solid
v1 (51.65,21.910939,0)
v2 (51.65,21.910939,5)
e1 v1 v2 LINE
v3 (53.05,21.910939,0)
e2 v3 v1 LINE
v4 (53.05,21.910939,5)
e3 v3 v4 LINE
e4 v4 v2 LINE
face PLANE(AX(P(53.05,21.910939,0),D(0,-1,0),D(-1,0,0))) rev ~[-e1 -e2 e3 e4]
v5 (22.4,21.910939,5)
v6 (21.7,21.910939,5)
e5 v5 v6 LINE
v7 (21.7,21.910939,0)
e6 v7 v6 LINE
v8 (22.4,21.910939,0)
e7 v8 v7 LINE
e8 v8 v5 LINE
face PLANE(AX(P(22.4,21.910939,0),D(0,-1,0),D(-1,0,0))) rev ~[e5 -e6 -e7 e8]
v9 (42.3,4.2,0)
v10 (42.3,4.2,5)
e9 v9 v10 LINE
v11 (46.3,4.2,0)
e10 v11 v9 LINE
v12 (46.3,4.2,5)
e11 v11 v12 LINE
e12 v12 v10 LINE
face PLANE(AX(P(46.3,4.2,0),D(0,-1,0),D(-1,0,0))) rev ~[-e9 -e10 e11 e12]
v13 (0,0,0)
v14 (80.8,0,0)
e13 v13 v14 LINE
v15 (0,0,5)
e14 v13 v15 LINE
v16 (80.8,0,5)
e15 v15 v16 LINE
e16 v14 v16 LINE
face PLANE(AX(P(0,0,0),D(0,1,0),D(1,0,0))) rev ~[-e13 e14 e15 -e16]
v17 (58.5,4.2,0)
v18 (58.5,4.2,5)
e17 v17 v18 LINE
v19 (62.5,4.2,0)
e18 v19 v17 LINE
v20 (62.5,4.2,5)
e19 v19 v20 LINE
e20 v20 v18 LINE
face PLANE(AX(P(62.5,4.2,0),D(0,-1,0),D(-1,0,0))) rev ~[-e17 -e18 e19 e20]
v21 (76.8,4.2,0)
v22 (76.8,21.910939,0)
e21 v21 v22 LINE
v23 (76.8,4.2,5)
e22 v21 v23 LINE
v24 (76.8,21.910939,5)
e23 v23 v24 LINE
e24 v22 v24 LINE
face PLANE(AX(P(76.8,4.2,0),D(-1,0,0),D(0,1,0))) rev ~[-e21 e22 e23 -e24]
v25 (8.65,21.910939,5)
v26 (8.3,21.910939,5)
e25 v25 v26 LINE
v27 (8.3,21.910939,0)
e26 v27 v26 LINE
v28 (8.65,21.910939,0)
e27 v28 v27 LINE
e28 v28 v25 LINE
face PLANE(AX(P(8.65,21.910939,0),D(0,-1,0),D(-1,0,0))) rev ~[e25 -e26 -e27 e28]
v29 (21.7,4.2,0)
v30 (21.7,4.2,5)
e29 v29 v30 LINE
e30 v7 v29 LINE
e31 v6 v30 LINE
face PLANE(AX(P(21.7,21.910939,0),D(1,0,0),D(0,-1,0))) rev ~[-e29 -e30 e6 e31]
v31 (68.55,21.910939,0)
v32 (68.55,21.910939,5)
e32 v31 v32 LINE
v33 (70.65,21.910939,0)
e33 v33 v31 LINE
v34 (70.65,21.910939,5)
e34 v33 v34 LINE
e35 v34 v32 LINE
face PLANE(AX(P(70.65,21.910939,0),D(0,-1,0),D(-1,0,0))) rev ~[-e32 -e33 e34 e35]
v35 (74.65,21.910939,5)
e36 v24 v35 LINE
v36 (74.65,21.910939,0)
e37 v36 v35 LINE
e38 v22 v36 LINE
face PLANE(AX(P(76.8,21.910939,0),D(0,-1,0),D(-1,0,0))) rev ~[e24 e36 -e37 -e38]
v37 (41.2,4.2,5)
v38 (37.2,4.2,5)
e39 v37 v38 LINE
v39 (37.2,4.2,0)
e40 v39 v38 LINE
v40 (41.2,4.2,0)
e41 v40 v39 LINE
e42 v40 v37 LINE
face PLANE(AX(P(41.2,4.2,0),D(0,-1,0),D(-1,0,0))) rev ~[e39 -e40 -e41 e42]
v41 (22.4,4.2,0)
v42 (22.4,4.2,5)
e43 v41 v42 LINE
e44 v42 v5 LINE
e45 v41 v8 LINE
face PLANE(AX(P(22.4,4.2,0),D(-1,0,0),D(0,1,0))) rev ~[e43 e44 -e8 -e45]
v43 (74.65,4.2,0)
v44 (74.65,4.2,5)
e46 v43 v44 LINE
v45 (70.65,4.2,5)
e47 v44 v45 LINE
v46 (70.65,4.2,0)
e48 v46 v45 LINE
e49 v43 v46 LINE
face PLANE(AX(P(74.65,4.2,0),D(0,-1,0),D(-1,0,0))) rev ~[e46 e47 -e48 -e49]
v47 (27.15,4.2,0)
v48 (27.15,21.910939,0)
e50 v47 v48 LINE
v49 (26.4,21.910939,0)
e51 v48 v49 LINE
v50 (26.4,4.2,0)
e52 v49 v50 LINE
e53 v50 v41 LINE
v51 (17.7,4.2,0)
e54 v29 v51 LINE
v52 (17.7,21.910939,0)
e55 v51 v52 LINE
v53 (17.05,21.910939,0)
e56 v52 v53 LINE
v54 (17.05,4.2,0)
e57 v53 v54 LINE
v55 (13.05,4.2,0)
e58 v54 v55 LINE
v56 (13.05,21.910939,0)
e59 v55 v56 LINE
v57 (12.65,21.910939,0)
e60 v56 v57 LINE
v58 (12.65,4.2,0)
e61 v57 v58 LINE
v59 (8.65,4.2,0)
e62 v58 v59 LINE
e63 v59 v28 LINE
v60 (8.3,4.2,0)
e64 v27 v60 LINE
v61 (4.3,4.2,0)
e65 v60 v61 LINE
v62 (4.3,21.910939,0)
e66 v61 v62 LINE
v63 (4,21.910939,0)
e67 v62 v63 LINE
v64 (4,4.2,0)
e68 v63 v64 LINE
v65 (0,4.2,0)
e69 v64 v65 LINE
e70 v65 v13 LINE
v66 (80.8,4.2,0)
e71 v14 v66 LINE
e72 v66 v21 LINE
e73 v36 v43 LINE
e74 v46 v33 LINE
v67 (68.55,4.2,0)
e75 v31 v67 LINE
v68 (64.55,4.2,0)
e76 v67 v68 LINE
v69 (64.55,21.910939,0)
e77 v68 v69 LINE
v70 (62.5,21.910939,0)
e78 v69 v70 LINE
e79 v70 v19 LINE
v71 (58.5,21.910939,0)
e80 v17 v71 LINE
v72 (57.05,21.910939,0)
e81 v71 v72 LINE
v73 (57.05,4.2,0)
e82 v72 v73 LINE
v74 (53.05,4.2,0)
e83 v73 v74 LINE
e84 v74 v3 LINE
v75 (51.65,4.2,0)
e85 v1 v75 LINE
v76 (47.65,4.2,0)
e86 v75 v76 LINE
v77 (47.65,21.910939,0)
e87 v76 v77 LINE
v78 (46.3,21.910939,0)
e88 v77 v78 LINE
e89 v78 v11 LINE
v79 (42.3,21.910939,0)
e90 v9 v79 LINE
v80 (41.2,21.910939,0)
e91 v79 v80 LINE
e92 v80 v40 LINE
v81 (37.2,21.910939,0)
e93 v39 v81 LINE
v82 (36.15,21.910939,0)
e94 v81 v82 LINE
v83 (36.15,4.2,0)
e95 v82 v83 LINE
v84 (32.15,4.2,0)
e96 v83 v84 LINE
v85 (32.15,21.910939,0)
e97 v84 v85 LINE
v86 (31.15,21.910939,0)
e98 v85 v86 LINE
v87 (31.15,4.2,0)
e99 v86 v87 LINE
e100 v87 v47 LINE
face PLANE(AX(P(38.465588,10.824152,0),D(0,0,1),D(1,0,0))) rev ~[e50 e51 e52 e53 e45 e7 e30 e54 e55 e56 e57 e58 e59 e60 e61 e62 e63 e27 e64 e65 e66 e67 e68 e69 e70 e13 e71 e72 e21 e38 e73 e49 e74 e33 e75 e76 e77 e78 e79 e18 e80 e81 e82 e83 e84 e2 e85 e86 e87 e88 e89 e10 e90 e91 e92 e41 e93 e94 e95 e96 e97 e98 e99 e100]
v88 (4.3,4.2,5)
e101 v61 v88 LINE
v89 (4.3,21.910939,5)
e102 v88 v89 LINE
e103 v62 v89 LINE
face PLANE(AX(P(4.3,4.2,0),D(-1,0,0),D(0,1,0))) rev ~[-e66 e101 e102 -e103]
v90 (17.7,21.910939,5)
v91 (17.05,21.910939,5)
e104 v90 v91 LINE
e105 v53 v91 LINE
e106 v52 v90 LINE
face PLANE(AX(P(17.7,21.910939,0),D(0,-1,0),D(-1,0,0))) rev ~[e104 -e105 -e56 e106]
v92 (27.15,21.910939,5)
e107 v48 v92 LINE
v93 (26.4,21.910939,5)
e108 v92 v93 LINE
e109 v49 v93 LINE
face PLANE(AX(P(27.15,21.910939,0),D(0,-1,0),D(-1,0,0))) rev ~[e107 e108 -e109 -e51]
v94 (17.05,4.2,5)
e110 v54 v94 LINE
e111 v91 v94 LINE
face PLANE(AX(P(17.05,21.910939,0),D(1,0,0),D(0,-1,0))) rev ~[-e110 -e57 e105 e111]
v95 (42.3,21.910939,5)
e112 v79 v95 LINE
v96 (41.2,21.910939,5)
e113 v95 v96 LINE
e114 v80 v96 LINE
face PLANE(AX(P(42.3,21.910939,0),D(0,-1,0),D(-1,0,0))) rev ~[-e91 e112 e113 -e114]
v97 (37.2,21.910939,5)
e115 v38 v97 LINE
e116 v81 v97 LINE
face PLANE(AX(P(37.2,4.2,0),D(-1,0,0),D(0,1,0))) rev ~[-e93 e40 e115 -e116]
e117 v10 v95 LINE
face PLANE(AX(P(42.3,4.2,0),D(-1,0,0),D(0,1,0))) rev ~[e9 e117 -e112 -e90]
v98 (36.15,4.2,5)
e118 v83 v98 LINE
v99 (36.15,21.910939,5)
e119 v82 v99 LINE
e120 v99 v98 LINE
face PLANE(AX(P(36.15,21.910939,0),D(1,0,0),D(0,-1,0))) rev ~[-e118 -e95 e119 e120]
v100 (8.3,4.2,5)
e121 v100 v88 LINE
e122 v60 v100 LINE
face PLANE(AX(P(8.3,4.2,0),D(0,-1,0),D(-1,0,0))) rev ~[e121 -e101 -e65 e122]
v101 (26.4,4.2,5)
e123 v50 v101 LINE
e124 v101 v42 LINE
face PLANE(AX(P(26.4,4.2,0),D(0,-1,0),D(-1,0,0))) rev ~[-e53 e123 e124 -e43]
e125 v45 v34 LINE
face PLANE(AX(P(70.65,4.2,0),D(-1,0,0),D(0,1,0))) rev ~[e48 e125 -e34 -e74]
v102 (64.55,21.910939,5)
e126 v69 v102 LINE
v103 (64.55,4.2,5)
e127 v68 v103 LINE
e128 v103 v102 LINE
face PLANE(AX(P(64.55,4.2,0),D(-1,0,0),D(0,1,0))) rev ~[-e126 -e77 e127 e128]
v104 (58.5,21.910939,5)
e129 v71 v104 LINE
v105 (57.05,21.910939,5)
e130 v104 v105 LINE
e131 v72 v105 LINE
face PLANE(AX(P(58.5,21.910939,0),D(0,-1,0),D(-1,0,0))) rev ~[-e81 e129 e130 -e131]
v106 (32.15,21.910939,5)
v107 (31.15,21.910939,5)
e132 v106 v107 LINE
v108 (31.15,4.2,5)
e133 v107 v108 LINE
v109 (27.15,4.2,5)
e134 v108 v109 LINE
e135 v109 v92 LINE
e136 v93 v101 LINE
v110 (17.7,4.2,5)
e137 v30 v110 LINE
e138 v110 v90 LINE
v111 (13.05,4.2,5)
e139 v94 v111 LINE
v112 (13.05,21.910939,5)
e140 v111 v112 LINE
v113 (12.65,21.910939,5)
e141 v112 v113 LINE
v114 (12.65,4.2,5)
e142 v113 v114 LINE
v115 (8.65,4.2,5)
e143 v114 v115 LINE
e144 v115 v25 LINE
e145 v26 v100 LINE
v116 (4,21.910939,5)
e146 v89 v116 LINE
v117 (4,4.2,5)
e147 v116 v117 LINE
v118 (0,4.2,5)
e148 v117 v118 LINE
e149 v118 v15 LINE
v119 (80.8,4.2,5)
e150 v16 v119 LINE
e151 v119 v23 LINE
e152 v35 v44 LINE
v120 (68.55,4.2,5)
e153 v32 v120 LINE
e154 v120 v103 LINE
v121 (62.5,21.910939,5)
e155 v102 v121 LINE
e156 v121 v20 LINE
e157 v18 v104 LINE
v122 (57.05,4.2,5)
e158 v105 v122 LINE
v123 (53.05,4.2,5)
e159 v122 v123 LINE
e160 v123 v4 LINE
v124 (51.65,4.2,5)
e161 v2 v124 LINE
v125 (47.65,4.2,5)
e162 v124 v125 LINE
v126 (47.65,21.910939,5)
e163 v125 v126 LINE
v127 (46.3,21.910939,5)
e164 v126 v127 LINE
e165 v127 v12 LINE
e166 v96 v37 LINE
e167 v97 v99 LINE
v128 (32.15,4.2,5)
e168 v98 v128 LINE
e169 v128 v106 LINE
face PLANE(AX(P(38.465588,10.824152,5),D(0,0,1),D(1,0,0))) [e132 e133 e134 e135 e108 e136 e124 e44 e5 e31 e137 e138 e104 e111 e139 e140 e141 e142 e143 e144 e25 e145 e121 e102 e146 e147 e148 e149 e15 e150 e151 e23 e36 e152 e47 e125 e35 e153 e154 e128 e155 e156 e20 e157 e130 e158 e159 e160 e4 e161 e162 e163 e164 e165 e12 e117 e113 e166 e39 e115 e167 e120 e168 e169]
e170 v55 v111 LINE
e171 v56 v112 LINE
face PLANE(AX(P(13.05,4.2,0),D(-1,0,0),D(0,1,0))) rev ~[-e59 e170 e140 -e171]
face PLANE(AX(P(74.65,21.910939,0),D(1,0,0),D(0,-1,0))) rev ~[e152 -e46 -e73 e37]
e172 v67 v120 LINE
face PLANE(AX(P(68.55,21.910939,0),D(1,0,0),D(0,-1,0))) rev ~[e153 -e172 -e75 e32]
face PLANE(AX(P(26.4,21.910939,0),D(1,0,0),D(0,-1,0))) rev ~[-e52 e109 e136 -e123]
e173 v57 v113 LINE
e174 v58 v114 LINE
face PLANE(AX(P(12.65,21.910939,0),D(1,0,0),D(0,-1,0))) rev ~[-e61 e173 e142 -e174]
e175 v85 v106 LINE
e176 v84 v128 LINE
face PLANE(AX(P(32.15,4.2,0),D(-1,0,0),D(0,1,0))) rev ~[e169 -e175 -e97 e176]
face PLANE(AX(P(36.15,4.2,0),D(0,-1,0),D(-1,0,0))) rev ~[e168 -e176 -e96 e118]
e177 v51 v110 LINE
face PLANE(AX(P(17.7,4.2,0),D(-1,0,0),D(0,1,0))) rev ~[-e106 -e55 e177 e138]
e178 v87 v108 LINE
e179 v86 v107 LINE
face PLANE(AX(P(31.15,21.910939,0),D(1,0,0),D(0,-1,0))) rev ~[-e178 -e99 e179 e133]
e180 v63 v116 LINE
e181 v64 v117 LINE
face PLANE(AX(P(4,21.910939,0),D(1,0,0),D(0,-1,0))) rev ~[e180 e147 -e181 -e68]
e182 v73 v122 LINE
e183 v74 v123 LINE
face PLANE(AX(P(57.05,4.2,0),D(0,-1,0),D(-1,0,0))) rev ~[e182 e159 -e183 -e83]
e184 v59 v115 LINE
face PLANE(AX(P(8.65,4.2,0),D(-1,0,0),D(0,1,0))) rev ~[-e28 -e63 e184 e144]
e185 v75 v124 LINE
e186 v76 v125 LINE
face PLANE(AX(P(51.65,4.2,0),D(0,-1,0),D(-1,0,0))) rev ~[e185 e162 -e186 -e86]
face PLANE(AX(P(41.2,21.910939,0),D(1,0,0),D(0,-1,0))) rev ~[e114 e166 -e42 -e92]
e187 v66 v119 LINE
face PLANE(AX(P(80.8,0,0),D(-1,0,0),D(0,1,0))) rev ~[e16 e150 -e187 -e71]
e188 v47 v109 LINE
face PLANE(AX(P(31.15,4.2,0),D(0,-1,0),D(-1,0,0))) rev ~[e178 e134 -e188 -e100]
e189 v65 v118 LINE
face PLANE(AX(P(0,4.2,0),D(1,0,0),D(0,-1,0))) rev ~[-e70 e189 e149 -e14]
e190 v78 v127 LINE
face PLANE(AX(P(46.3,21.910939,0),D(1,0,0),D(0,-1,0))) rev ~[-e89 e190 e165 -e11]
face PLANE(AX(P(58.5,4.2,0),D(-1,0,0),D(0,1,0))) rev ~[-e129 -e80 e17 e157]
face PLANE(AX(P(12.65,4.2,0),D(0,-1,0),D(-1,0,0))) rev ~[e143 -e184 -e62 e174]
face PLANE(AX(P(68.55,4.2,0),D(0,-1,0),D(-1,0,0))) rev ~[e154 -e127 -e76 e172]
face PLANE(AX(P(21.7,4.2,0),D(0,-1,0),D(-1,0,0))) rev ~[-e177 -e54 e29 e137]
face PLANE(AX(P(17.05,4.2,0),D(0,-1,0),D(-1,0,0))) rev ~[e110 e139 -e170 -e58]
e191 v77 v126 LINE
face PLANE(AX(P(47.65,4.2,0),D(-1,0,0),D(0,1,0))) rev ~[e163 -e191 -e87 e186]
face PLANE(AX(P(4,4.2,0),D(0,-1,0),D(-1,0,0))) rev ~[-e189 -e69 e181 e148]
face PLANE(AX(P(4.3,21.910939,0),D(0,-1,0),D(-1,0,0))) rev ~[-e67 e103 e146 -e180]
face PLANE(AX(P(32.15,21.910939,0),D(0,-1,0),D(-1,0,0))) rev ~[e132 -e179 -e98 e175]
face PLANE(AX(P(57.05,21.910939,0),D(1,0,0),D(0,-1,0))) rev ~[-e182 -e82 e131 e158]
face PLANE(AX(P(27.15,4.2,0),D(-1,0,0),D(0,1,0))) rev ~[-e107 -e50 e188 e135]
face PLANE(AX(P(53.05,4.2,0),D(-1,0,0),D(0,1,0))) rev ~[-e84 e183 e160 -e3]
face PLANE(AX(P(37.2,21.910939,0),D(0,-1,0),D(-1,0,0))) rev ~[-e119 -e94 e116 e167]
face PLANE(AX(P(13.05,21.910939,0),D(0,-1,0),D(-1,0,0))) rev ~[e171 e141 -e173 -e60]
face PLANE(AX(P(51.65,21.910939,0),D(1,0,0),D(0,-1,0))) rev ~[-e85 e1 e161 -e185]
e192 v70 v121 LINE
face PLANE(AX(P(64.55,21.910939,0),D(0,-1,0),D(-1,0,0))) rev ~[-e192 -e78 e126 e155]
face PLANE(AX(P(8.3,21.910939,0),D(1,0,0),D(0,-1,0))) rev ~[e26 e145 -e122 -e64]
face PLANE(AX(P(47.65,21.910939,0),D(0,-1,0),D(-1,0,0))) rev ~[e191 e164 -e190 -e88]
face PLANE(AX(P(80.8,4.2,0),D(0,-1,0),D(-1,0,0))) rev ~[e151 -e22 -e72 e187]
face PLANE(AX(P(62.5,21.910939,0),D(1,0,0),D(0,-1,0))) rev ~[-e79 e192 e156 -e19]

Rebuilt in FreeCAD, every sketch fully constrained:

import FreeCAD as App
import Part
import Sketcher


def add_polygon(sketch, points):
    """Adds a closed chain of lines whose ends are joined by coincident constraints."""
    first, n = sketch.GeometryCount, len(points)
    for a, b in zip(points, points[1:] + points[:1]):
        sketch.addGeometry(Part.LineSegment(App.Vector(*a, 0), App.Vector(*b, 0)), False)
    for i in range(n):
        sketch.addConstraint(Sketcher.Constraint("Coincident", first + i, 2, first + (i + 1) % n, 1))

doc = App.newDocument("Part")
body = doc.addObject("PartDesign::Body", "Body")

sketch1 = body.newObject("Sketcher::SketchObject", "Sketch")
sketch1.AttachmentSupport = (doc.getObject("XY_Plane"), [""])
sketch1.MapMode = "FlatFace"
add_polygon(sketch1, [(0, 4.2), (0, 0), (80.8, 0), (80.8, 4.2), (76.8, 4.2), (76.8, 21.910939), (74.65, 21.910939), (74.65, 4.2), (70.65, 4.2), (70.65, 21.910939), (68.55, 21.910939), (68.55, 4.2), (64.55, 4.2), (64.55, 21.910939), (62.5, 21.910939), (62.5, 4.2), (58.5, 4.2), (58.5, 21.910939), (57.05, 21.910939), (57.05, 4.2), (53.05, 4.2), (53.05, 21.910939), (51.65, 21.910939), (51.65, 4.2), (47.65, 4.2), (47.65, 21.910939), (46.3, 21.910939), (46.3, 4.2), (42.3, 4.2), (42.3, 21.910939), (41.2, 21.910939), (41.2, 4.2), (37.2, 4.2), (37.2, 21.910939), (36.15, 21.910939), (36.15, 4.2), (32.15, 4.2), (32.15, 21.910939), (31.15, 21.910939), (31.15, 4.2), (27.15, 4.2), (27.15, 21.910939), (26.4, 21.910939), (26.4, 4.2), (22.4, 4.2), (22.4, 21.910939), (21.7, 21.910939), (21.7, 4.2), (17.7, 4.2), (17.7, 21.910939), (17.05, 21.910939), (17.05, 4.2), (13.05, 4.2), (13.05, 21.910939), (12.65, 21.910939), (12.65, 4.2), (8.65, 4.2), (8.65, 21.910939), (8.3, 21.910939), (8.3, 4.2), (4.3, 4.2), (4.3, 21.910939), (4, 21.910939), (4, 4.2)])
sketch1.addConstraint([
    Sketcher.Constraint("Vertical", 0),
    Sketcher.Constraint("Horizontal", 1),
    Sketcher.Constraint("Vertical", 2),
    Sketcher.Constraint("Horizontal", 3),
    Sketcher.Constraint("Vertical", 4),
    Sketcher.Constraint("Horizontal", 5),
    Sketcher.Constraint("Vertical", 6),
    Sketcher.Constraint("Horizontal", 7),
    Sketcher.Constraint("Vertical", 8),
    Sketcher.Constraint("Horizontal", 9),
    Sketcher.Constraint("Vertical", 10),
    Sketcher.Constraint("Horizontal", 11),
    Sketcher.Constraint("Vertical", 12),
    Sketcher.Constraint("Horizontal", 13),
    Sketcher.Constraint("Vertical", 14),
    Sketcher.Constraint("Horizontal", 15),
    Sketcher.Constraint("Vertical", 16),
    Sketcher.Constraint("Horizontal", 17),
    Sketcher.Constraint("Vertical", 18),
    Sketcher.Constraint("Horizontal", 19),
    Sketcher.Constraint("Vertical", 20),
    Sketcher.Constraint("Horizontal", 21),
    Sketcher.Constraint("Vertical", 22),
    Sketcher.Constraint("Horizontal", 23),
    Sketcher.Constraint("Vertical", 24),
    Sketcher.Constraint("Horizontal", 25),
    Sketcher.Constraint("Vertical", 26),
    Sketcher.Constraint("Horizontal", 27),
    Sketcher.Constraint("Vertical", 28),
    Sketcher.Constraint("Horizontal", 29),
    Sketcher.Constraint("Vertical", 30),
    Sketcher.Constraint("Horizontal", 31),
    Sketcher.Constraint("Vertical", 32),
    Sketcher.Constraint("Horizontal", 33),
    Sketcher.Constraint("Vertical", 34),
    Sketcher.Constraint("Horizontal", 35),
    Sketcher.Constraint("Vertical", 36),
    Sketcher.Constraint("Horizontal", 37),
    Sketcher.Constraint("Vertical", 38),
    Sketcher.Constraint("Horizontal", 39),
    Sketcher.Constraint("Vertical", 40),
    Sketcher.Constraint("Horizontal", 41),
    Sketcher.Constraint("Vertical", 42),
    Sketcher.Constraint("Horizontal", 43),
    Sketcher.Constraint("Vertical", 44),
    Sketcher.Constraint("Horizontal", 45),
    Sketcher.Constraint("Vertical", 46),
    Sketcher.Constraint("Horizontal", 47),
    Sketcher.Constraint("Vertical", 48),
    Sketcher.Constraint("Horizontal", 49),
    Sketcher.Constraint("Vertical", 50),
    Sketcher.Constraint("Horizontal", 51),
    Sketcher.Constraint("Vertical", 52),
    Sketcher.Constraint("Horizontal", 53),
    Sketcher.Constraint("Vertical", 54),
    Sketcher.Constraint("Horizontal", 55),
    Sketcher.Constraint("Vertical", 56),
    Sketcher.Constraint("Horizontal", 57),
    Sketcher.Constraint("Vertical", 58),
    Sketcher.Constraint("Horizontal", 59),
    Sketcher.Constraint("Vertical", 60),
    Sketcher.Constraint("Horizontal", 61),
    Sketcher.Constraint("Vertical", 62),
    Sketcher.Constraint("Horizontal", 63),
    Sketcher.Constraint("Coincident", 0, 2, -1, 1),
    Sketcher.Constraint("Horizontal", 3, 2, 6, 2),
    Sketcher.Constraint("Horizontal", 5, 2, 8, 2),
    Sketcher.Constraint("Horizontal", 7, 2, 10, 2),
    Sketcher.Constraint("Horizontal", 9, 2, 12, 2),
    Sketcher.Constraint("Horizontal", 11, 2, 14, 2),
    Sketcher.Constraint("Horizontal", 13, 2, 16, 2),
    Sketcher.Constraint("Horizontal", 15, 2, 18, 2),
    Sketcher.Constraint("Horizontal", 17, 2, 20, 2),
    Sketcher.Constraint("Horizontal", 19, 2, 22, 2),
    Sketcher.Constraint("Horizontal", 21, 2, 24, 2),
    Sketcher.Constraint("Horizontal", 23, 2, 26, 2),
    Sketcher.Constraint("Horizontal", 25, 2, 28, 2),
    Sketcher.Constraint("Horizontal", 27, 2, 30, 2),
    Sketcher.Constraint("Horizontal", 29, 2, 32, 2),
    Sketcher.Constraint("Horizontal", 31, 2, 34, 2),
    Sketcher.Constraint("Horizontal", 33, 2, 36, 2),
    Sketcher.Constraint("Horizontal", 35, 2, 38, 2),
    Sketcher.Constraint("Horizontal", 37, 2, 40, 2),
    Sketcher.Constraint("Horizontal", 39, 2, 42, 2),
    Sketcher.Constraint("Horizontal", 41, 2, 44, 2),
    Sketcher.Constraint("Horizontal", 43, 2, 46, 2),
    Sketcher.Constraint("Horizontal", 45, 2, 48, 2),
    Sketcher.Constraint("Horizontal", 47, 2, 50, 2),
    Sketcher.Constraint("Horizontal", 49, 2, 52, 2),
    Sketcher.Constraint("Horizontal", 51, 2, 54, 2),
    Sketcher.Constraint("Horizontal", 53, 2, 56, 2),
    Sketcher.Constraint("Horizontal", 55, 2, 58, 2),
    Sketcher.Constraint("Horizontal", 57, 2, 60, 2),
    Sketcher.Constraint("Horizontal", 59, 2, 62, 2),
    Sketcher.Constraint("Equal", 3, 7),
    Sketcher.Constraint("Equal", 7, 11),
    Sketcher.Constraint("Equal", 11, 15),
    Sketcher.Constraint("Equal", 15, 19),
    Sketcher.Constraint("Equal", 19, 23),
    Sketcher.Constraint("Equal", 23, 27),
    Sketcher.Constraint("Equal", 27, 31),
    Sketcher.Constraint("Equal", 31, 35),
    Sketcher.Constraint("Equal", 35, 39),
    Sketcher.Constraint("Equal", 39, 43),
    Sketcher.Constraint("Equal", 43, 47),
    Sketcher.Constraint("Equal", 47, 51),
    Sketcher.Constraint("Equal", 51, 55),
    Sketcher.Constraint("Equal", 55, 59),
    Sketcher.Constraint("Equal", 59, 63),
    Sketcher.Constraint("DistanceX", 3, 2, 3, 1, 4.0),
    Sketcher.Constraint("DistanceX", 37, 2, 37, 1, 1.0),
    Sketcher.Constraint("DistanceX", 1, 1, 1, 2, 80.8),
    Sketcher.Constraint("DistanceX", 9, 2, 9, 1, 2.1),
    Sketcher.Constraint("DistanceX", 21, 2, 21, 1, 1.4),
    Sketcher.Constraint("DistanceX", 29, 2, 29, 1, 1.1),
    Sketcher.Constraint("DistanceX", 45, 2, 45, 1, 0.7),
    Sketcher.Constraint("DistanceX", 53, 2, 53, 1, 0.4),
    Sketcher.Constraint("DistanceX", 61, 2, 61, 1, 0.3),
    Sketcher.Constraint("DistanceY", 0, 2, 0, 1, 4.2),
    Sketcher.Constraint("DistanceX", 5, 2, 5, 1, 2.15),
    Sketcher.Constraint("DistanceX", 13, 2, 13, 1, 2.05),
    Sketcher.Constraint("DistanceX", 17, 2, 17, 1, 1.45),
    Sketcher.Constraint("DistanceX", 25, 2, 25, 1, 1.35),
    Sketcher.Constraint("DistanceX", 33, 2, 33, 1, 1.05),
    Sketcher.Constraint("DistanceX", 41, 2, 41, 1, 0.75),
    Sketcher.Constraint("DistanceX", 49, 2, 49, 1, 0.65),
    Sketcher.Constraint("DistanceY", 4, 1, 4, 2, 17.710939),
])
pad1 = body.newObject("PartDesign::Pad", "Pad")
pad1.Profile = sketch1
pad1.Length = 5

doc.recompute()
